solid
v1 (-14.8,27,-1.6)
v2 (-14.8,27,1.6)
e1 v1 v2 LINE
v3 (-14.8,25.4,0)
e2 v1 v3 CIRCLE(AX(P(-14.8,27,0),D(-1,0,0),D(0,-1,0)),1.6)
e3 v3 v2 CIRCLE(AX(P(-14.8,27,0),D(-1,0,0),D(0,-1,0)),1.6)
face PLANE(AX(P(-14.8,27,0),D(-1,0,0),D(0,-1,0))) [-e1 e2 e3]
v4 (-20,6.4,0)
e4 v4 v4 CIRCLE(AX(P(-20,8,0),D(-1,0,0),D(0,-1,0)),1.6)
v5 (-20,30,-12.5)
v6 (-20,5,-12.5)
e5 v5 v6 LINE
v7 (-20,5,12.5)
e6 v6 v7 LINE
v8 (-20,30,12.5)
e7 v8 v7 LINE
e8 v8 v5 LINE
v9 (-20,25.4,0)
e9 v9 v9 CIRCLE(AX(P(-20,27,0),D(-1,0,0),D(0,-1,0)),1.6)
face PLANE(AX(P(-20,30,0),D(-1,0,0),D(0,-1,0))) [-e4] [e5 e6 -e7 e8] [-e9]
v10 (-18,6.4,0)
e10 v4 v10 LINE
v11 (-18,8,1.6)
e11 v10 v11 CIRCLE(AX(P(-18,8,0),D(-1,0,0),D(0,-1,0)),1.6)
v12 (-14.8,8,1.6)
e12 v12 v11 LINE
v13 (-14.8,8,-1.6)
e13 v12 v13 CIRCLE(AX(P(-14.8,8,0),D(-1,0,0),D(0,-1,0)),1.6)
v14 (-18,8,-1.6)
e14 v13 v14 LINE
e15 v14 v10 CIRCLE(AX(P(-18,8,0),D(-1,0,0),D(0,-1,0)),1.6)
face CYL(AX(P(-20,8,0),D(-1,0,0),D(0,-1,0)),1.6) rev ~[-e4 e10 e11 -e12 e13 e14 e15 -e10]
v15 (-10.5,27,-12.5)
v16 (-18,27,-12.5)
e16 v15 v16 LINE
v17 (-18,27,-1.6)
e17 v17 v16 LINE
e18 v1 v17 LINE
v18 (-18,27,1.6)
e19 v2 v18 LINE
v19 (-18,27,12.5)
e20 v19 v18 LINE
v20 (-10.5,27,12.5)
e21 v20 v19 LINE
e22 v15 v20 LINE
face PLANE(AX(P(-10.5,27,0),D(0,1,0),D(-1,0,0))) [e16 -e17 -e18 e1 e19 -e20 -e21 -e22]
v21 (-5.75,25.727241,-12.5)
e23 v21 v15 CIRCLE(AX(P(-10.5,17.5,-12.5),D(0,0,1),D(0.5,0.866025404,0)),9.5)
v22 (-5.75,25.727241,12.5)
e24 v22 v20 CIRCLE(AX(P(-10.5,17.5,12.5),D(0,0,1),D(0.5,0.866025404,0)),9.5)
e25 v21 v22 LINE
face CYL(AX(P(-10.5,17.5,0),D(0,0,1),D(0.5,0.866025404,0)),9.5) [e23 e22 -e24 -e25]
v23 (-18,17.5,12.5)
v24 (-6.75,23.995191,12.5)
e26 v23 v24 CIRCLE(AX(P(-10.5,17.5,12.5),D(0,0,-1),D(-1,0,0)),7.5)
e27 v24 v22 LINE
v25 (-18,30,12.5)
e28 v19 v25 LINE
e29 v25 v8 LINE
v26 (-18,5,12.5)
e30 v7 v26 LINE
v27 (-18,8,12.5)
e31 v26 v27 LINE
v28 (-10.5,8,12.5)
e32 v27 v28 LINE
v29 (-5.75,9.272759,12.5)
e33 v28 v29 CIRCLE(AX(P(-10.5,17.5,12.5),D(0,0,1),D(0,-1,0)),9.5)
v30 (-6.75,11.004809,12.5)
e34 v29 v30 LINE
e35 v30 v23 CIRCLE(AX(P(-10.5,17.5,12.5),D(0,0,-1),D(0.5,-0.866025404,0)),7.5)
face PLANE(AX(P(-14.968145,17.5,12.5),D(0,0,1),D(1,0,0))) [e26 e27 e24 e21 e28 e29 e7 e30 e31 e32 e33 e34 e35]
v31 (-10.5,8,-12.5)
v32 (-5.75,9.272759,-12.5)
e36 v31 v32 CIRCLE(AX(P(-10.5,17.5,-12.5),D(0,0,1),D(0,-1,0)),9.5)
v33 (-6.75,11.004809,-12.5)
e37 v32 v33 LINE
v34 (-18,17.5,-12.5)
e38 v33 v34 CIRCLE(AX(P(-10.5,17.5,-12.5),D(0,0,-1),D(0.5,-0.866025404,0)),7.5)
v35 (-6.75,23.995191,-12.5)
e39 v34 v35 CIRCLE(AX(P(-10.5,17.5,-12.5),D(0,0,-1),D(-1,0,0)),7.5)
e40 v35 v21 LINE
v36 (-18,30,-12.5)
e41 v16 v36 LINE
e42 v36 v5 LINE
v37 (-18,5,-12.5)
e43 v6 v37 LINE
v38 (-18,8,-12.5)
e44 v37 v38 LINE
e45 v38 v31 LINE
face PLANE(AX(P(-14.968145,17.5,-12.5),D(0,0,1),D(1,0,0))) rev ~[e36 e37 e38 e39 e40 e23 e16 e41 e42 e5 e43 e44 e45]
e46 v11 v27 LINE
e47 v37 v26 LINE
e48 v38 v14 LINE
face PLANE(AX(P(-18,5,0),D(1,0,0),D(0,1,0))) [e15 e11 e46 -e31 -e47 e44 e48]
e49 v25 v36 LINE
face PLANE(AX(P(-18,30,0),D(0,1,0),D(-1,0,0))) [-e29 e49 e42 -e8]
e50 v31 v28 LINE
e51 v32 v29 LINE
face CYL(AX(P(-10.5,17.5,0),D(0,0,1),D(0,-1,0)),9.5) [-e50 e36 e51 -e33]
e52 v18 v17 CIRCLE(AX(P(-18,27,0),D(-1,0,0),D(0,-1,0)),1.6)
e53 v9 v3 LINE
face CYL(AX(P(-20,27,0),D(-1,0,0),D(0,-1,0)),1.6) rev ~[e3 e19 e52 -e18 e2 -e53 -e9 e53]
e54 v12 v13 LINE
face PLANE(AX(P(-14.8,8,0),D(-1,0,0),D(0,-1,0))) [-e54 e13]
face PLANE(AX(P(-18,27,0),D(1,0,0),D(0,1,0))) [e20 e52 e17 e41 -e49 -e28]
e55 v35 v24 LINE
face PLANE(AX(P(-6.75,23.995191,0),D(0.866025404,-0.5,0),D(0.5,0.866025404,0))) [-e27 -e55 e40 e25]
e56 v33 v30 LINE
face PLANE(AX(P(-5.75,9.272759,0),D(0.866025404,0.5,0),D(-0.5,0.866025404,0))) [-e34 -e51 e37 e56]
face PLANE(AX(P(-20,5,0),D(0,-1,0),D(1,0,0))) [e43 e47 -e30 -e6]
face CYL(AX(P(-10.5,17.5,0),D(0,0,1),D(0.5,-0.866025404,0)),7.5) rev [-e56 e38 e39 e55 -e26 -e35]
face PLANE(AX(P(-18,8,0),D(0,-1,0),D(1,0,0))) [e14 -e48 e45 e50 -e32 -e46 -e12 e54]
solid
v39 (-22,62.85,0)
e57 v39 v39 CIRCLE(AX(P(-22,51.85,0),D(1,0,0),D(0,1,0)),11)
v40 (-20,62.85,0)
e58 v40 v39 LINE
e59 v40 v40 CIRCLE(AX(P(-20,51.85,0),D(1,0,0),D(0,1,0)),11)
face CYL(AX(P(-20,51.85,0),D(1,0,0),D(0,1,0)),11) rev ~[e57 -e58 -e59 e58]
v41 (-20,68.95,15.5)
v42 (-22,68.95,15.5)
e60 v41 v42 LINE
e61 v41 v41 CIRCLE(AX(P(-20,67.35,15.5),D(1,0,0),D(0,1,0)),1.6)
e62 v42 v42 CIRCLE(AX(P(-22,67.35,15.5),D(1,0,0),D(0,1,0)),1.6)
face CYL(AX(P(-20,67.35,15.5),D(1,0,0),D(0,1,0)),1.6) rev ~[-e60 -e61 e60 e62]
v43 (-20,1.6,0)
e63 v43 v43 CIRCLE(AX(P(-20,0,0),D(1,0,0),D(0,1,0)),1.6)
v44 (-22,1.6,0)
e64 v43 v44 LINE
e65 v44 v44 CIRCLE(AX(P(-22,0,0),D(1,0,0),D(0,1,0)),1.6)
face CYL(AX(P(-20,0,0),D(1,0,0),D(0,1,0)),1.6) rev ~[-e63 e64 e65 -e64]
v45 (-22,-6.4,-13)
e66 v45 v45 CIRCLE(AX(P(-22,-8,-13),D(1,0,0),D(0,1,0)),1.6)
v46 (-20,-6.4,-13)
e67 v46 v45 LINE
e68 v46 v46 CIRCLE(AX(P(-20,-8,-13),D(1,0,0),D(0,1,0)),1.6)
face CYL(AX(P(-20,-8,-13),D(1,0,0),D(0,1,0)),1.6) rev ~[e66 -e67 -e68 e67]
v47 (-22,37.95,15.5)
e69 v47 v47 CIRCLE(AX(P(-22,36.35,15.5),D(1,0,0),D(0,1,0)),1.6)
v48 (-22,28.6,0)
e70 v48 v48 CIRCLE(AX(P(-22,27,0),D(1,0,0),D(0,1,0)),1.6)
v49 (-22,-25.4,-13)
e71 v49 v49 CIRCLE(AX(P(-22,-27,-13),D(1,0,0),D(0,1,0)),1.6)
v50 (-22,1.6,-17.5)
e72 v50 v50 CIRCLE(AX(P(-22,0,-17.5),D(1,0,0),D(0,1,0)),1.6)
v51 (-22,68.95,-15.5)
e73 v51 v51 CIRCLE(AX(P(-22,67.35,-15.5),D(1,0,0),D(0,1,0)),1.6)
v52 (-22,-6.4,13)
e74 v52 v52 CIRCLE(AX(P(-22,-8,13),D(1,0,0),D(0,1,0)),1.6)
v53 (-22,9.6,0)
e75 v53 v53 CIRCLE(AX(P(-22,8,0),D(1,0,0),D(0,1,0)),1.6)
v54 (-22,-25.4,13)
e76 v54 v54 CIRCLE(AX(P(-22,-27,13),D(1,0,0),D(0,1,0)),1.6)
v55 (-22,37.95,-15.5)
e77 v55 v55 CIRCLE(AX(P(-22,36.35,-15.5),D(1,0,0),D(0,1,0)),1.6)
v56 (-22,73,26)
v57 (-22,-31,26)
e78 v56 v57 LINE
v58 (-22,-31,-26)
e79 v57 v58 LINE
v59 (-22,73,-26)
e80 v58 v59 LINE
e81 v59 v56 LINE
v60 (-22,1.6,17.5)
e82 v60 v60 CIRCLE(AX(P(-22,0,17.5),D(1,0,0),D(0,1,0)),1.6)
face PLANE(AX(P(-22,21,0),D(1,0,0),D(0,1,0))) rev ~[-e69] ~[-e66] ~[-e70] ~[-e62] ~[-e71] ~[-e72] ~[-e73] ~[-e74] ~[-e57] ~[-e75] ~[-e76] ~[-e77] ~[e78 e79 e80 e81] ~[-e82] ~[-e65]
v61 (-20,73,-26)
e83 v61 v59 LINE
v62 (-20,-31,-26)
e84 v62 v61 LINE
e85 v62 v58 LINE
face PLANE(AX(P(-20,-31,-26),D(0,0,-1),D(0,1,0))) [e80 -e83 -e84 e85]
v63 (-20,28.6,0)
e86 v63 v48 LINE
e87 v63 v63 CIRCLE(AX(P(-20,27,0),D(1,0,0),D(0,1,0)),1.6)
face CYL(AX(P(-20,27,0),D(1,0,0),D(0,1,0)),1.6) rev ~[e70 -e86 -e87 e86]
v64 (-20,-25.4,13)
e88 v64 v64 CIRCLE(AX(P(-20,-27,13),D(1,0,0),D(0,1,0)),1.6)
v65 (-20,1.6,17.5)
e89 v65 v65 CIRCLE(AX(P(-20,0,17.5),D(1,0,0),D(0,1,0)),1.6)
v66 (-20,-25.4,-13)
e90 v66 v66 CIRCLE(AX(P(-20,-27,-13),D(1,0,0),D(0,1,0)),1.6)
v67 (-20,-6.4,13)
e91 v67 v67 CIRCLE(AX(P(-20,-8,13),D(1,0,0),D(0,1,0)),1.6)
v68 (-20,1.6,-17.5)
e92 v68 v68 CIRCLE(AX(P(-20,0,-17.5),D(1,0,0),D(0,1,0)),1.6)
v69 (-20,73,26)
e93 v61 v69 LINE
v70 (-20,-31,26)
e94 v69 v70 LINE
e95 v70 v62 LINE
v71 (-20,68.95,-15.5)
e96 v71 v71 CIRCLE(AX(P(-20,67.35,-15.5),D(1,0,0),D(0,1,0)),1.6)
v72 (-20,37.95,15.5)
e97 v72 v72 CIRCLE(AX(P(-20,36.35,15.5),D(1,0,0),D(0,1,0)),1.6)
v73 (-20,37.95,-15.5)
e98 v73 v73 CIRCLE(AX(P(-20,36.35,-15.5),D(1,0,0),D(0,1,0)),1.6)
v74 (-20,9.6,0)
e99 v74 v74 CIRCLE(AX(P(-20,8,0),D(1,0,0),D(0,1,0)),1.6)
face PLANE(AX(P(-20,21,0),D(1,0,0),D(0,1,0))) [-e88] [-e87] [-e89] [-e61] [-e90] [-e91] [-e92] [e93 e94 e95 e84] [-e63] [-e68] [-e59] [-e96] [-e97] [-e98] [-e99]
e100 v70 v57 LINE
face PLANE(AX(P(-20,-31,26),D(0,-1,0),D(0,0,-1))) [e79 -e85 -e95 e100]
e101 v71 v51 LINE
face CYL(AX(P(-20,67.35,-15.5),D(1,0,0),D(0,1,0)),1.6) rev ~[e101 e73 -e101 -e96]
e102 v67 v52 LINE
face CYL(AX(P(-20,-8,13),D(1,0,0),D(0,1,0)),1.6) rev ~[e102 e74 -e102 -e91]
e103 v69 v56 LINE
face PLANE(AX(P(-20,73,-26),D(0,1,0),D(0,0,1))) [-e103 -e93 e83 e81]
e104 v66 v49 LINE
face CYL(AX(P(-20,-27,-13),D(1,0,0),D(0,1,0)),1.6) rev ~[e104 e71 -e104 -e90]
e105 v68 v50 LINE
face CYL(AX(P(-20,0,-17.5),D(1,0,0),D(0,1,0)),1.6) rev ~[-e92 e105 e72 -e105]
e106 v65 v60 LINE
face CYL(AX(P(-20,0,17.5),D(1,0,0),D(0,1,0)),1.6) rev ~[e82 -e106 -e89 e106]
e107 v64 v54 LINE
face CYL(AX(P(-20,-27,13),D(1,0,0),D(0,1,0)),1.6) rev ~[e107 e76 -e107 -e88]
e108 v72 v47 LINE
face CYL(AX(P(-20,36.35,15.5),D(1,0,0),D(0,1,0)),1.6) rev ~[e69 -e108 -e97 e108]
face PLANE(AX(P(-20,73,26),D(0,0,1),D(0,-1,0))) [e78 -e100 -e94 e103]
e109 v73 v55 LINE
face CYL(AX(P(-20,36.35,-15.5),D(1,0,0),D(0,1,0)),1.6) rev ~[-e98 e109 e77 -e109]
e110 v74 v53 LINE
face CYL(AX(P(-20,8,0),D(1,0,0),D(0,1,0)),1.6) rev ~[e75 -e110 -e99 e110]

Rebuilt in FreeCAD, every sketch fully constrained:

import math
import FreeCAD as App
import Part
import Sketcher
from FreeCAD import Vector
Q = App.Units.Quantity


def add_polygon(sketch, points):
    """Adds a closed chain of lines whose ends are joined by coincident constraints."""
    first, n = sketch.GeometryCount, len(points)
    for a, b in zip(points, points[1:] + points[:1]):
        sketch.addGeometry(Part.LineSegment(App.Vector(*a, 0), App.Vector(*b, 0)), False)
    for i in range(n):
        sketch.addConstraint(Sketcher.Constraint("Coincident", first + i, 2, first + (i + 1) % n, 1))

doc = App.newDocument("Part")
body = doc.addObject("PartDesign::Body", "Body")

sketch1 = body.newObject("Sketcher::SketchObject", "Sketch")
sketch1.AttachmentSupport = (doc.getObject("XY_Plane"), [""])
sketch1.MapMode = "FlatFace"
sketch1.addGeometry([
    Part.LineSegment(Vector(-20, 30, 0), Vector(-20, 5, 0)),
    Part.LineSegment(Vector(-20, 5, 0), Vector(-18, 5, 0)),
    Part.LineSegment(Vector(-18, 5, 0), Vector(-18, 8, 0)),
    Part.LineSegment(Vector(-18, 8, 0), Vector(-10.5, 8, 0)),
    Part.ArcOfCircle(Part.Circle(Vector(-10.5, 17.5, 0), Vector(0, 0, 1), 9.5), math.radians(-90), math.radians(-60)),
    Part.LineSegment(Vector(-5.75, 9.272759, 0), Vector(-6.75, 11.004809, 0)),
    Part.ArcOfCircle(Part.Circle(Vector(-10.5, 17.5, 0), Vector(0, 0, 1), 7.5), math.radians(180), math.radians(300)),
    Part.ArcOfCircle(Part.Circle(Vector(-10.5, 17.5, 0), Vector(0, 0, 1), 7.5), math.radians(60), math.radians(180)),
    Part.LineSegment(Vector(-6.75, 23.995191, 0), Vector(-5.75, 25.727241, 0)),
    Part.ArcOfCircle(Part.Circle(Vector(-10.5, 17.5, 0), Vector(0, 0, 1), 9.5), math.radians(60), math.radians(90)),
    Part.LineSegment(Vector(-10.5, 27, 0), Vector(-18, 27, 0)),
    Part.LineSegment(Vector(-18, 27, 0), Vector(-18, 30, 0)),
    Part.LineSegment(Vector(-18, 30, 0), Vector(-20, 30, 0)),
], False)
sketch1.addConstraint([
    Sketcher.Constraint("Coincident", 0, 2, 1, 1),
    Sketcher.Constraint("Coincident", 1, 2, 2, 1),
    Sketcher.Constraint("Coincident", 2, 2, 3, 1),
    Sketcher.Constraint("Tangent", 3, 2, 4, 1),
    Sketcher.Constraint("Coincident", 4, 2, 5, 1),
    Sketcher.Constraint("Coincident", 5, 2, 6, 2),
    Sketcher.Constraint("Tangent", 6, 1, 7, 2),
    Sketcher.Constraint("Coincident", 7, 1, 8, 1),
    Sketcher.Constraint("Coincident", 8, 2, 9, 1),
    Sketcher.Constraint("Tangent", 9, 2, 10, 1),
    Sketcher.Constraint("Coincident", 10, 2, 11, 1),
    Sketcher.Constraint("Coincident", 11, 2, 12, 1),
    Sketcher.Constraint("Coincident", 12, 2, 0, 1),
    Sketcher.Constraint("Vertical", 0),
    Sketcher.Constraint("Horizontal", 1),
    Sketcher.Constraint("Vertical", 2),
    Sketcher.Constraint("Horizontal", 3),
    Sketcher.Constraint("Horizontal", 10),
    Sketcher.Constraint("Vertical", 11),
    Sketcher.Constraint("Horizontal", 12),
    Sketcher.Constraint("Coincident", 6, 3, 4, 3),
    Sketcher.Constraint("Coincident", 9, 3, 4, 3),
    Sketcher.Constraint("Equal", 6, 7),
    Sketcher.Constraint("Equal", 4, 9),
    Sketcher.Constraint("Horizontal", 9, 3, 6, 1),
    Sketcher.Constraint("Vertical", 2, 2, 6, 1),
    Sketcher.Constraint("Vertical", 5, 2, 7, 1),
    Sketcher.Constraint("Vertical", 4, 2, 8, 2),
    Sketcher.Constraint("Vertical", 6, 1, 10, 2),
    Sketcher.Constraint("Equal", 2, 11),
    Sketcher.Constraint("Radius", 4, Q("9.5 mm")),
    Sketcher.Constraint("Radius", 6, Q("7.5 mm")),
    Sketcher.Constraint("DistanceX", 1, 1, 1, 2, Q("2 mm")),
    Sketcher.Constraint("DistanceY", 0, 2, 0, 1, Q("25 mm")),
    Sketcher.Constraint("Angle", 5, Q("120 deg")),
    Sketcher.Constraint("DistanceX", 0, 2, -1, 1, Q("20 mm")),
    Sketcher.Constraint("DistanceY", -1, 1, 0, 2, Q("5 mm")),
    Sketcher.Constraint("DistanceX", 4, 2, -1, 1, Q("5.75 mm")),
])
pad1 = body.newObject("PartDesign::Pad", "Pad")
pad1.Profile = sketch1
pad1.Length = 25
pad1.Midplane = True

sketch2 = body.newObject("Sketcher::SketchObject", "Sketch001")
sketch2.AttachmentSupport = (doc.getObject("YZ_Plane"), [""])
sketch2.MapMode = "FlatFace"
sketch2.AttachmentOffset = App.Placement(Vector(0, 0, -20), App.Rotation())
sketch2.addGeometry([
    Part.Circle(Vector(27, 0, 0), Vector(0, 0, 1), 1.6),
    Part.Circle(Vector(8, 0, 0), Vector(0, 0, 1), 1.6),
], False)
sketch2.addConstraint([
    Sketcher.Constraint("Equal", 0, 1),
    Sketcher.Constraint("PointOnObject", 0, 3, -1),
    Sketcher.Constraint("PointOnObject", 1, 3, -1),
    Sketcher.Constraint("Diameter", 0, Q("3.2 mm")),
    Sketcher.Constraint("DistanceX", -1, 1, 0, 3, Q("27 mm")),
    Sketcher.Constraint("DistanceX", -1, 1, 1, 3, Q("8 mm")),
])
pocket1 = body.newObject("PartDesign::Pocket", "Pocket")
pocket1.Profile = sketch2
pocket1.Length = 5.2
pocket1.Reversed = True
body2 = doc.addObject("PartDesign::Body", "Body001")

sketch3 = body2.newObject("Sketcher::SketchObject", "Sketch002")
sketch3.AttachmentSupport = (doc.getObject("YZ_Plane001"), [""])
sketch3.MapMode = "FlatFace"
sketch3.AttachmentOffset = App.Placement(Vector(0, 0, -20), App.Rotation())
add_polygon(sketch3, [(-31, 26), (-31, -26), (73, -26), (73, 26)])
sketch3.addGeometry(Part.Circle(Vector(-27, -13, 0), Vector(0, 0, 1), 1.6), False)
sketch3.addGeometry(Part.Circle(Vector(-8, -13, 0), Vector(0, 0, 1), 1.6), False)
sketch3.addGeometry(Part.Circle(Vector(0, -17.5, 0), Vector(0, 0, 1), 1.6), False)
sketch3.addGeometry(Part.Circle(Vector(0, 0, 0), Vector(0, 0, 1), 1.6), False)
sketch3.addGeometry(Part.Circle(Vector(8, 0, 0), Vector(0, 0, 1), 1.6), False)
sketch3.addGeometry(Part.Circle(Vector(36.35, -15.5, 0), Vector(0, 0, 1), 1.6), False)
sketch3.addGeometry(Part.Circle(Vector(67.35, -15.5, 0), Vector(0, 0, 1), 1.6), False)
sketch3.addGeometry(Part.Circle(Vector(27, 0, 0), Vector(0, 0, 1), 1.6), False)
sketch3.addGeometry(Part.Circle(Vector(51.85, 0, 0), Vector(0, 0, 1), 11), False)
sketch3.addGeometry(Part.Circle(Vector(-27, 13, 0), Vector(0, 0, 1), 1.6), False)
sketch3.addGeometry(Part.Circle(Vector(-8, 13, 0), Vector(0, 0, 1), 1.6), False)
sketch3.addGeometry(Part.Circle(Vector(0, 17.5, 0), Vector(0, 0, 1), 1.6), False)
sketch3.addGeometry(Part.Circle(Vector(36.35, 15.5, 0), Vector(0, 0, 1), 1.6), False)
sketch3.addGeometry(Part.Circle(Vector(67.35, 15.5, 0), Vector(0, 0, 1), 1.6), False)
sketch3.addConstraint([
    Sketcher.Constraint("Vertical", 0),
    Sketcher.Constraint("Horizontal", 1),
    Sketcher.Constraint("Vertical", 2),
    Sketcher.Constraint("Horizontal", 3),
    Sketcher.Constraint("Coincident", 7, 3, -1, 1),
    Sketcher.Constraint("Equal", 4, 5),
    Sketcher.Constraint("Equal", 5, 6),
    Sketcher.Constraint("Equal", 6, 7),
    Sketcher.Constraint("Equal", 7, 8),
    Sketcher.Constraint("Equal", 8, 9),
    Sketcher.Constraint("Equal", 9, 10),
    Sketcher.Constraint("Equal", 10, 11),
    Sketcher.Constraint("Equal", 11, 13),
    Sketcher.Constraint("Equal", 13, 14),
    Sketcher.Constraint("Equal", 14, 15),
    Sketcher.Constraint("Equal", 15, 16),
    Sketcher.Constraint("Equal", 16, 17),
    Sketcher.Constraint("Symmetric", 6, 3, 15, 3, -1, 1),
    Sketcher.Constraint("Symmetric", 4, 3, 13, 3, -1),
    Sketcher.Constraint("Symmetric", 5, 3, 14, 3, -1),
    Sketcher.Constraint("Symmetric", 9, 3, 16, 3, -1),
    Sketcher.Constraint("Symmetric", 10, 3, 17, 3, -1),
    Sketcher.Constraint("PointOnObject", 6, 3, -2),
    Sketcher.Constraint("PointOnObject", 8, 3, -1),
    Sketcher.Constraint("PointOnObject", 11, 3, -1),
    Sketcher.Constraint("PointOnObject", 12, 3, -1),
    Sketcher.Constraint("Horizontal", 4, 3, 5, 3),
    Sketcher.Constraint("Horizontal", 9, 3, 10, 3),
    Sketcher.Constraint("Diameter", 12, Q("22 mm")),
    Sketcher.Constraint("Diameter", 4, Q("3.2 mm")),
    Sketcher.Constraint("DistanceX", 1, 1, 1, 2, Q("104 mm")),
    Sketcher.Constraint("DistanceY", 0, 2, 0, 1, Q("52 mm")),
    Sketcher.Constraint("DistanceX", 4, 3, -1, 1, Q("27 mm")),
    Sketcher.Constraint("DistanceY", 4, 3, -1, 1, Q("13 mm")),
    Sketcher.Constraint("DistanceX", 5, 3, -1, 1, Q("8 mm")),
    Sketcher.Constraint("DistanceX", -1, 1, 8, 3, Q("8 mm")),
    Sketcher.Constraint("DistanceX", -1, 1, 11, 3, Q("27 mm")),
    Sketcher.Constraint("DistanceX", 0, 2, -1, 1, Q("31 mm")),
    Sketcher.Constraint("DistanceY", 0, 2, -1, 1, Q("26 mm")),
    Sketcher.Constraint("DistanceY", 6, 3, 9, 3, Q("2 mm")),
    Sketcher.Constraint("DistanceX", 9, 3, 10, 3, Q("31 mm")),
    Sketcher.Constraint("DistanceY", 9, 3, 16, 3, Q("31 mm")),
    Sketcher.Constraint("DistanceX", 12, 3, 10, 3, Q("15.5 mm")),
    Sketcher.Constraint("DistanceX", -1, 1, 9, 3, Q("36.35 mm")),
])
pad2 = body2.newObject("PartDesign::Pad", "Pad001")
pad2.Profile = sketch3
pad2.Length = 2
pad2.Reversed = True

doc.recompute()
